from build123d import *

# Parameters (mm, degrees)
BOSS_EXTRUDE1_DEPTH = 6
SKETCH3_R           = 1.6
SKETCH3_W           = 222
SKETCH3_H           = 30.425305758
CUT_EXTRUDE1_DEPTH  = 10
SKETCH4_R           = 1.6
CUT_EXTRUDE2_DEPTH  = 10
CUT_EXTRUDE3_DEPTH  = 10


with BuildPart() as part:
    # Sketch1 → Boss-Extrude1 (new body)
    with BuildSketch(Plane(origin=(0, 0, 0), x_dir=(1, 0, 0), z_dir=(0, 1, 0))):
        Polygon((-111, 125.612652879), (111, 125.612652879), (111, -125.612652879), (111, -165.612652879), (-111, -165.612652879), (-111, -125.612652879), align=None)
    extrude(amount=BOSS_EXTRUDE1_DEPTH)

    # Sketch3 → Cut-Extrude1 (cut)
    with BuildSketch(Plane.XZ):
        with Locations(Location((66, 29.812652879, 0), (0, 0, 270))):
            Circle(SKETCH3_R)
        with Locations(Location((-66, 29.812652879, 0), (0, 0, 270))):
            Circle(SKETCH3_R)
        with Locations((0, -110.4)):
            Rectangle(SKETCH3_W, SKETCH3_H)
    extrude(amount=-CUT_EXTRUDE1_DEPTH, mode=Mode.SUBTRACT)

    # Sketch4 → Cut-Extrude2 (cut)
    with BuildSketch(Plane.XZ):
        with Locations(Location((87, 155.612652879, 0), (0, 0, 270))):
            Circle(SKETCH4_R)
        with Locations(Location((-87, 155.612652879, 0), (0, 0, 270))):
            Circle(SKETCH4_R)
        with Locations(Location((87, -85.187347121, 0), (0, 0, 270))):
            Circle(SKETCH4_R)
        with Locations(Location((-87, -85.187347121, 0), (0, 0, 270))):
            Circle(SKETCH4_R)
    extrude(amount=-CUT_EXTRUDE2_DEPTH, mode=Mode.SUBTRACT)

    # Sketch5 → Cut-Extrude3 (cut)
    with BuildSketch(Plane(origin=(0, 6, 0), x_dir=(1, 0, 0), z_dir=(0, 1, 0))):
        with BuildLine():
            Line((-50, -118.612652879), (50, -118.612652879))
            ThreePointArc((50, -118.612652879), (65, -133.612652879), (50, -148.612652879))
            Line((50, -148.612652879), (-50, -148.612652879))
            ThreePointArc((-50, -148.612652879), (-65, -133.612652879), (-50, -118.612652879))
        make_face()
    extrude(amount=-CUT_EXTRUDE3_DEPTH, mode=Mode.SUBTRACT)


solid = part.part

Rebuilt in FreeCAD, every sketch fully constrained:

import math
import FreeCAD as App
import Part
import Sketcher
from FreeCAD import Vector
Q = App.Units.Quantity


def add_polygon(sketch, points):
    """Adds a closed chain of lines whose ends are joined by coincident constraints."""
    first, n = sketch.GeometryCount, len(points)
    for a, b in zip(points, points[1:] + points[:1]):
        sketch.addGeometry(Part.LineSegment(App.Vector(*a, 0), App.Vector(*b, 0)), False)
    for i in range(n):
        sketch.addConstraint(Sketcher.Constraint("Coincident", first + i, 2, first + (i + 1) % n, 1))

doc = App.newDocument("Part")
body = doc.addObject("PartDesign::Body", "Body")

# Sketch on XZ plane
sketch1 = body.newObject("Sketcher::SketchObject", "Sketch")
sketch1.AttachmentSupport = (doc.getObject("XZ_Plane"), [""])
sketch1.MapMode = "FlatFace"
add_polygon(sketch1, [(111, -125.612653), (-111, -125.612653), (-111, 165.612653), (111, 165.612653)])  # lines 0-3
sketch1.addConstraint(Sketcher.Constraint("Horizontal", 0))
sketch1.addConstraint(Sketcher.Constraint("Vertical", 1))
sketch1.addConstraint(Sketcher.Constraint("Horizontal", 2))
sketch1.addConstraint(Sketcher.Constraint("Vertical", 3))
sketch1.addConstraint(Sketcher.Constraint("DistanceX", 0, 2, 0, 1, Q("222 mm")))
sketch1.addConstraint(Sketcher.Constraint("DistanceX", 0, 2, -1, 1, Q("111 mm")))
sketch1.addConstraint(Sketcher.Constraint("DistanceY", 1, 1, 1, 2, Q("291.225306 mm")))
sketch1.addConstraint(Sketcher.Constraint("DistanceY", 0, 2, -1, 1, Q("125.612653 mm")))
pad1 = body.newObject("PartDesign::Pad", "Pad")
pad1.Profile = sketch1
pad1.Length = 6
pad1.Reversed = True

# Sketch on XZ plane
sketch2 = body.newObject("Sketcher::SketchObject", "Sketch001")
sketch2.AttachmentSupport = (doc.getObject("XZ_Plane"), [""])
sketch2.MapMode = "FlatFace"
sketch2.addGeometry(Part.Circle(Vector(66, 29.812653, 0), Vector(0, 0, 1), 1.6), False)  # 0
sketch2.addGeometry(Part.Circle(Vector(-66, 29.812653, 0), Vector(0, 0, 1), 1.6), False)  # 1
add_polygon(sketch2, [(-111, -95.187347), (-111, -125.612653), (111, -125.612653), (111, -95.187347)])  # lines 2-5
sketch2.addConstraint(Sketcher.Constraint("Vertical", 2))
sketch2.addConstraint(Sketcher.Constraint("Horizontal", 3))
sketch2.addConstraint(Sketcher.Constraint("Vertical", 4))
sketch2.addConstraint(Sketcher.Constraint("Horizontal", 5))
sketch2.addConstraint(Sketcher.Constraint("Equal", 0, 1))
sketch2.addConstraint(Sketcher.Constraint("Symmetric", 0, 3, 1, 3, -2))
sketch2.addConstraint(Sketcher.Constraint("Diameter", 0, Q("3.2 mm")))
sketch2.addConstraint(Sketcher.Constraint("DistanceX", 3, 1, 3, 2, Q("222 mm")))
sketch2.addConstraint(Sketcher.Constraint("DistanceX", -1, 1, 0, 3, Q("66 mm")))
sketch2.addConstraint(Sketcher.Constraint("DistanceX", 2, 2, -1, 1, Q("111 mm")))
sketch2.addConstraint(Sketcher.Constraint("DistanceY", 4, 2, 0, 3, Q("125 mm")))
sketch2.addConstraint(Sketcher.Constraint("DistanceY", 2, 2, 2, 1, Q("30.425306 mm")))
sketch2.addConstraint(Sketcher.Constraint("DistanceY", -1, 1, 0, 3, Q("29.812653 mm")))
pocket1 = body.newObject("PartDesign::Pocket", "Pocket")
pocket1.Profile = sketch2
pocket1.Length = 10

# Sketch on XZ plane
sketch3 = body.newObject("Sketcher::SketchObject", "Sketch002")
sketch3.AttachmentSupport = (doc.getObject("XZ_Plane"), [""])
sketch3.MapMode = "FlatFace"
sketch3.addGeometry(Part.Circle(Vector(87, 155.612653, 0), Vector(0, 0, 1), 1.6), False)
sketch3.addGeometry(Part.Circle(Vector(-87, 155.612653, 0), Vector(0, 0, 1), 1.6), False)
sketch3.addGeometry(Part.Circle(Vector(87, -85.187347, 0), Vector(0, 0, 1), 1.6), False)
sketch3.addGeometry(Part.Circle(Vector(-87, -85.187347, 0), Vector(0, 0, 1), 1.6), False)
sketch3.addConstraint(Sketcher.Constraint("Equal", 0, 1))
sketch3.addConstraint(Sketcher.Constraint("Equal", 1, 2))
sketch3.addConstraint(Sketcher.Constraint("Equal", 2, 3))
sketch3.addConstraint(Sketcher.Constraint("Symmetric", 0, 3, 1, 3, -2))
sketch3.addConstraint(Sketcher.Constraint("Symmetric", 2, 3, 3, 3, -2))
sketch3.addConstraint(Sketcher.Constraint("Vertical", 0, 3, 2, 3))
sketch3.addConstraint(Sketcher.Constraint("Diameter", 0, Q("3.2 mm")))
sketch3.addConstraint(Sketcher.Constraint("DistanceX", -1, 1, 0, 3, Q("87 mm")))
sketch3.addConstraint(Sketcher.Constraint("DistanceY", 2, 3, 0, 3, Q("240.8 mm")))
sketch3.addConstraint(Sketcher.Constraint("DistanceY", -1, 1, 0, 3, Q("155.612653 mm")))
pocket2 = body.newObject("PartDesign::Pocket", "Pocket001")
pocket2.Profile = sketch3
pocket2.Length = 10

# Sketch on XZ plane
sketch4 = body.newObject("Sketcher::SketchObject", "Sketch003")
sketch4.AttachmentSupport = (doc.getObject("XZ_Plane"), [""])
sketch4.MapMode = "FlatFace"
sketch4.AttachmentOffset = App.Placement(Vector(0, 0, -6), App.Rotation())
sketch4.addGeometry(Part.LineSegment(Vector(50, 118.612653, 0), Vector(-50, 118.612653, 0)), False)
sketch4.addGeometry(Part.ArcOfCircle(Part.Circle(Vector(-50, 133.612653, 0), Vector(0, 0, 1), 15), math.radians(90), math.radians(270)), False)
sketch4.addGeometry(Part.LineSegment(Vector(-50, 148.612653, 0), Vector(50, 148.612653, 0)), False)
sketch4.addGeometry(Part.ArcOfCircle(Part.Circle(Vector(50, 133.612653, 0), Vector(0, 0, 1), 15), math.radians(-90), math.radians(90)), False)
sketch4.addConstraint(Sketcher.Constraint("Tangent", 0, 2, 1, 2))
sketch4.addConstraint(Sketcher.Constraint("Tangent", 1, 1, 2, 1))
sketch4.addConstraint(Sketcher.Constraint("Tangent", 2, 2, 3, 2))
sketch4.addConstraint(Sketcher.Constraint("Tangent", 3, 1, 0, 1))
sketch4.addConstraint(Sketcher.Constraint("Horizontal", 0))
sketch4.addConstraint(Sketcher.Constraint("Horizontal", 2))
sketch4.addConstraint(Sketcher.Constraint("Radius", 1, Q("15 mm")))
sketch4.addConstraint(Sketcher.Constraint("DistanceX", 0, 2, 0, 1, Q("100 mm")))
sketch4.addConstraint(Sketcher.Constraint("DistanceX", 1, 3, -1, 1, Q("50 mm")))
sketch4.addConstraint(Sketcher.Constraint("DistanceY", -1, 1, 1, 3, Q("133.612653 mm")))
pocket3 = body.newObject("PartDesign::Pocket", "Pocket002")
pocket3.Profile = sketch4
pocket3.Length = 10
pocket3.Reversed = True

doc.recompute()
